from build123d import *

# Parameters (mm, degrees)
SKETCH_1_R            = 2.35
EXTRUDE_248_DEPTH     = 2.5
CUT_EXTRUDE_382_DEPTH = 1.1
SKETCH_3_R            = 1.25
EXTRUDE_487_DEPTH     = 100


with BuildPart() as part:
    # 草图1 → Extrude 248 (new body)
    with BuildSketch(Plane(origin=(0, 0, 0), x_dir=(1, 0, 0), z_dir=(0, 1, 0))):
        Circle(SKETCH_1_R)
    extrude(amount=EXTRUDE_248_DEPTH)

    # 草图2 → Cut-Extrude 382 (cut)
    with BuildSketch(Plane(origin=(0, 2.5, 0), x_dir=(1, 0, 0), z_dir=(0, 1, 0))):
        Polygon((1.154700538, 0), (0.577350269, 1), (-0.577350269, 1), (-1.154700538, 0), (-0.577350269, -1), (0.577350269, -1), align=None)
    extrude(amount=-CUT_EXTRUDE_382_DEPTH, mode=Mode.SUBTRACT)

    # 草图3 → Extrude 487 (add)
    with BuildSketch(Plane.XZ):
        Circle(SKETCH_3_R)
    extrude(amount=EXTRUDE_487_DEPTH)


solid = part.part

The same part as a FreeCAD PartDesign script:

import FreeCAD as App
import Part
import Sketcher
from FreeCAD import Vector
Q = App.Units.Quantity

doc = App.newDocument("Part")
params = doc.addObject("Spreadsheet::Sheet", "Params")
for row, (alias, value) in enumerate([
    ("sketch1_diameter", "4.7 mm"),
    ("pad1_length", "2.5 mm"),
    ("pocket1_length", "1.1 mm"),
    ("sketch3_diameter", "2.5 mm"),
    ("pad2_length", "100 mm"),
], start=1):
    params.set(f"A{row}", alias)
    params.set(f"B{row}", "=" + value)
    params.setAlias(f"B{row}", alias)

body = doc.addObject("PartDesign::Body", "Body")

# Sketch on XZ plane
sketch1 = body.newObject("Sketcher::SketchObject", "Sketch")
sketch1.AttachmentSupport = (doc.getObject("XZ_Plane"), [""])
sketch1.MapMode = "FlatFace"
sketch1.addGeometry(Part.Circle(Vector(0, 0, 0), Vector(0, 0, 1), 2.4), False)
sketch1.addConstraint([
    Sketcher.Constraint("Coincident", 0, 3, -1, 1),
    Sketcher.Constraint("Diameter", 0, Q("4.7 mm")),
])
sketch1.setExpression("Constraints[1]", "Params.sketch1_diameter")
pad1 = body.newObject("PartDesign::Pad", "Pad")
pad1.Profile = sketch1
pad1.setExpression("Length", "Params.pad1_length")
pad1.Reversed = True

# Sketch on XZ plane
sketch2 = body.newObject("Sketcher::SketchObject", "Sketch001")
sketch2.AttachmentSupport = (doc.getObject("XZ_Plane"), [""])
sketch2.MapMode = "FlatFace"
sketch2.AttachmentOffset = App.Placement(Vector(0, 0, -2.5), App.Rotation())
sketch2.addGeometry([
    Part.LineSegment(Vector(1.2, 0, 0), Vector(0.6, -1, 0)),  # 0
    Part.LineSegment(Vector(0.6, -1, 0), Vector(-0.6, -1, 0)),  # 1
    Part.LineSegment(Vector(-0.6, -1, 0), Vector(-1.2, 0, 0)),  # 2
    Part.LineSegment(Vector(-1.2, 0, 0), Vector(-0.6, 1, 0)),  # 3
    Part.LineSegment(Vector(-0.6, 1, 0), Vector(0.6, 1, 0)),  # 4
    Part.LineSegment(Vector(0.6, 1, 0), Vector(1.2, 0, 0)),  # 5
], False)
sketch2.addConstraint([
    Sketcher.Constraint("Coincident", 0, 2, 1, 1),
    Sketcher.Constraint("Coincident", 1, 2, 2, 1),
    Sketcher.Constraint("Coincident", 2, 2, 3, 1),
    Sketcher.Constraint("Coincident", 3, 2, 4, 1),
    Sketcher.Constraint("Coincident", 4, 2, 5, 1),
    Sketcher.Constraint("Coincident", 5, 2, 0, 1),
    Sketcher.Constraint("Horizontal", 1),
    Sketcher.Constraint("Horizontal", 4),
    Sketcher.Constraint("Symmetric", 0, 2, 3, 2, -1, 1),
    Sketcher.Constraint("Symmetric", 2, 2, 5, 2, -1, 1),
    Sketcher.Constraint("PointOnObject", 2, 2, -1),
    Sketcher.Constraint("Parallel", 2, 5),
    Sketcher.Constraint("Vertical", 1, 2, 3, 2),
    Sketcher.Constraint("Angle", 0, Q("-120 deg")),
    Sketcher.Constraint("DistanceY", 0, 2, -1, 1, Q("1 mm")),
    Sketcher.Constraint("DistanceX", 1, 2, 1, 1, Q("1.154701 mm")),
])
pocket1 = body.newObject("PartDesign::Pocket", "Pocket")
pocket1.Profile = sketch2
pocket1.setExpression("Length", "Params.pocket1_length")
pocket1.Reversed = True

# Sketch on XZ plane
sketch3 = body.newObject("Sketcher::SketchObject", "Sketch002")
sketch3.AttachmentSupport = (doc.getObject("XZ_Plane"), [""])
sketch3.MapMode = "FlatFace"
sketch3.addGeometry(Part.Circle(Vector(0, 0, 0), Vector(0, 0, 1), 1.2), False)
sketch3.addConstraint([
    Sketcher.Constraint("Coincident", 0, 3, -1, 1),
    Sketcher.Constraint("Diameter", 0, Q("2.5 mm")),
])
sketch3.setExpression("Constraints[1]", "Params.sketch3_diameter")
pad2 = body.newObject("PartDesign::Pad", "Pad001")
pad2.Profile = sketch3
pad2.setExpression("Length", "Params.pad2_length")

doc.recompute()
